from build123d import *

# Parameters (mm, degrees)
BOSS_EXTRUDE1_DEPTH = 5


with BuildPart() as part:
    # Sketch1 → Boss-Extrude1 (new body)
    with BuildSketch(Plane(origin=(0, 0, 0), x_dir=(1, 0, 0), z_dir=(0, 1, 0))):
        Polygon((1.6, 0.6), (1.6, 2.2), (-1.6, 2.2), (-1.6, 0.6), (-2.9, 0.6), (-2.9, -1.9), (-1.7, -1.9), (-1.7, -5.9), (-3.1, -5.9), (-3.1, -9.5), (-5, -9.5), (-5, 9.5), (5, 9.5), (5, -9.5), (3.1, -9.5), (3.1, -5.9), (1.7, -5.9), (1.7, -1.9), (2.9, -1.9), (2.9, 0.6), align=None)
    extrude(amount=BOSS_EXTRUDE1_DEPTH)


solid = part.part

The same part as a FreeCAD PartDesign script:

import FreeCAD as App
import Part
import Sketcher
from FreeCAD import Vector
Q = App.Units.Quantity


def add_polygon(sketch, points):
    """Adds a closed chain of lines whose ends are joined by coincident constraints."""
    first, n = sketch.GeometryCount, len(points)
    for a, b in zip(points, points[1:] + points[:1]):
        sketch.addGeometry(Part.LineSegment(App.Vector(*a, 0), App.Vector(*b, 0)), False)
    for i in range(n):
        sketch.addConstraint(Sketcher.Constraint("Coincident", first + i, 2, first + (i + 1) % n, 1))

doc = App.newDocument("Part")
body = doc.addObject("PartDesign::Body", "Body")

# Sketch on XZ plane
sketch1 = body.newObject("Sketcher::SketchObject", "Sketch")
sketch1.AttachmentSupport = (doc.getObject("XZ_Plane"), [""])
sketch1.MapMode = "FlatFace"
add_polygon(sketch1, [(1.6, -2.2), (1.6, -0.6), (2.9, -0.6), (2.9, 1.9), (1.7, 1.9), (1.7, 5.9), (3.1, 5.9), (3.1, 9.5), (5, 9.5), (5, -9.5), (-5, -9.5), (-5, 9.5), (-3.1, 9.5), (-3.1, 5.9), (-1.7, 5.9), (-1.7, 1.9), (-2.9, 1.9), (-2.9, -0.6), (-1.6, -0.6), (-1.6, -2.2)])  # lines 0-19
sketch1.addConstraint([
    Sketcher.Constraint("Vertical", 0),
    Sketcher.Constraint("Horizontal", 1),
    Sketcher.Constraint("Vertical", 2),
    Sketcher.Constraint("Horizontal", 3),
    Sketcher.Constraint("Vertical", 4),
    Sketcher.Constraint("Horizontal", 5),
    Sketcher.Constraint("Vertical", 6),
    Sketcher.Constraint("Horizontal", 7),
    Sketcher.Constraint("Vertical", 8),
    Sketcher.Constraint("Horizontal", 9),
    Sketcher.Constraint("Vertical", 10),
    Sketcher.Constraint("Horizontal", 11),
    Sketcher.Constraint("Vertical", 12),
    Sketcher.Constraint("Horizontal", 13),
    Sketcher.Constraint("Vertical", 14),
    Sketcher.Constraint("Horizontal", 15),
    Sketcher.Constraint("Vertical", 16),
    Sketcher.Constraint("Horizontal", 17),
    Sketcher.Constraint("Vertical", 18),
    Sketcher.Constraint("Horizontal", 19),
    Sketcher.Constraint("Symmetric", 7, 2, 9, 2, -1, 1),
    Sketcher.Constraint("Symmetric", 6, 2, 11, 2, -2),
    Sketcher.Constraint("Symmetric", 4, 2, 13, 2, -2),
    Sketcher.Constraint("Symmetric", 2, 2, 15, 2, -2),
    Sketcher.Constraint("Symmetric", 0, 2, 17, 2, -2),
    Sketcher.Constraint("DistanceX", 9, 2, 9, 1, Q("10 mm")),
    Sketcher.Constraint("DistanceY", 4, 1, 4, 2, Q("4 mm")),
    Sketcher.Constraint("DistanceY", 8, 2, 8, 1, Q("19 mm")),
    Sketcher.Constraint("DistanceX", 1, 1, 1, 2, Q("1.3 mm")),
    Sketcher.Constraint("DistanceX", 3, 2, 3, 1, Q("1.2 mm")),
    Sketcher.Constraint("DistanceX", 5, 1, 5, 2, Q("1.4 mm")),
    Sketcher.Constraint("DistanceX", 7, 1, 7, 2, Q("1.9 mm")),
    Sketcher.Constraint("DistanceY", 0, 1, 0, 2, Q("1.6 mm")),
    Sketcher.Constraint("DistanceY", 2, 1, 2, 2, Q("2.5 mm")),
    Sketcher.Constraint("DistanceY", 6, 1, 6, 2, Q("3.6 mm")),
])
pad1 = body.newObject("PartDesign::Pad", "Pad")
pad1.Profile = sketch1
pad1.Length = 5
pad1.Reversed = True

doc.recompute()
